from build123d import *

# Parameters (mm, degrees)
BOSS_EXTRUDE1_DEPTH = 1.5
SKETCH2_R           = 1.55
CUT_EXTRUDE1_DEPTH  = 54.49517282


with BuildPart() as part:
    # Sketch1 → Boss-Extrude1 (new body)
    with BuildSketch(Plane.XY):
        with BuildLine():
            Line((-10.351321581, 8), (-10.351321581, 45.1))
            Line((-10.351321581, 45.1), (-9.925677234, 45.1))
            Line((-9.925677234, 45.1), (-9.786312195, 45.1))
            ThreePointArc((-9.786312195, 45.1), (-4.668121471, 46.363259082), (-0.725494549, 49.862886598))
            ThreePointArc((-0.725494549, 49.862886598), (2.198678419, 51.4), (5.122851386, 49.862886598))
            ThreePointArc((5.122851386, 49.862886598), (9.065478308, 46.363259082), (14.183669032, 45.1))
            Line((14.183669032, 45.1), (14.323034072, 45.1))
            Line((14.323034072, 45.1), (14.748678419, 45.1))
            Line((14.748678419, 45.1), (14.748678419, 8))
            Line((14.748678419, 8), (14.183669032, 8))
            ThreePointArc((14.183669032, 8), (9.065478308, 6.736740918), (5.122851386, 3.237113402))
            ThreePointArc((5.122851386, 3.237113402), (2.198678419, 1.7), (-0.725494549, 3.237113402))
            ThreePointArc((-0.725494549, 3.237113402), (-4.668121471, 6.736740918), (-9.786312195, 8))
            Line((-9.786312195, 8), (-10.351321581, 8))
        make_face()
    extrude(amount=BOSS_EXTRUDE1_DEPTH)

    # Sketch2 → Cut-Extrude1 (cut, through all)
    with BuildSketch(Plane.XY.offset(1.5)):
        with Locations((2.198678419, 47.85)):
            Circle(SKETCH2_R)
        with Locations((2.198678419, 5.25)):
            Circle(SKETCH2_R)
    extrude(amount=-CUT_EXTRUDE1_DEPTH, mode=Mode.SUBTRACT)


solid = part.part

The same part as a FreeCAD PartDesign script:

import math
import FreeCAD as App
import Part
import Sketcher

V = App.Vector

doc = App.newDocument("Part")
body = doc.addObject("PartDesign::Body", "Body")

sketch1 = body.newObject("Sketcher::SketchObject", "Sketch")
sketch1.AttachmentSupport = (doc.getObject("XY_Plane"), [""])
sketch1.MapMode = "FlatFace"
sketch1.addGeometry([
    Part.LineSegment(V(-10.351322, 45.1, 0), V(-10.351322, 8, 0)),
    Part.LineSegment(V(-10.351322, 8, 0), V(-9.786312, 8, 0)),
    Part.ArcOfCircle(Part.Circle(V(-9.786312, -3, 0), V(0, 0, 1), 11), math.radians(34.542008), math.radians(90)),
    Part.ArcOfCircle(Part.Circle(V(2.198678, 5.25, 0), V(0, 0, 1), 3.55), math.radians(-145.457992), math.radians(-34.542008)),
    Part.ArcOfCircle(Part.Circle(V(14.183669, -3, 0), V(0, 0, 1), 11), math.radians(90), math.radians(145.457992)),
    Part.LineSegment(V(14.183669, 8, 0), V(14.748678, 8, 0)),
    Part.LineSegment(V(14.748678, 8, 0), V(14.748678, 45.1, 0)),
    Part.LineSegment(V(14.748678, 45.1, 0), V(14.183669, 45.1, 0)),
    Part.ArcOfCircle(Part.Circle(V(14.183669, 56.1, 0), V(0, 0, 1), 11), math.radians(-145.457992), math.radians(-90)),
    Part.ArcOfCircle(Part.Circle(V(2.198678, 47.85, 0), V(0, 0, 1), 3.55), math.radians(34.542008), math.radians(145.457992)),
    Part.ArcOfCircle(Part.Circle(V(-9.786312, 56.1, 0), V(0, 0, 1), 11), math.radians(-90), math.radians(-34.542008)),
    Part.LineSegment(V(-9.786312, 45.1, 0), V(-10.351322, 45.1, 0)),
], False)
sketch1.addConstraint([
    Sketcher.Constraint("Coincident", 0, 2, 1, 1),
    Sketcher.Constraint("Tangent", 1, 2, 2, 2),
    Sketcher.Constraint("Tangent", 2, 1, 3, 1),
    Sketcher.Constraint("Tangent", 3, 2, 4, 2),
    Sketcher.Constraint("Tangent", 4, 1, 5, 1),
    Sketcher.Constraint("Coincident", 5, 2, 6, 1),
    Sketcher.Constraint("Coincident", 6, 2, 7, 1),
    Sketcher.Constraint("Tangent", 7, 2, 8, 2),
    Sketcher.Constraint("Tangent", 8, 1, 9, 1),
    Sketcher.Constraint("Tangent", 9, 2, 10, 2),
    Sketcher.Constraint("Tangent", 10, 1, 11, 1),
    Sketcher.Constraint("Coincident", 11, 2, 0, 1),
    Sketcher.Constraint("Vertical", 0),
    Sketcher.Constraint("Horizontal", 1),
    Sketcher.Constraint("Horizontal", 5),
    Sketcher.Constraint("Vertical", 6),
    Sketcher.Constraint("Horizontal", 7),
    Sketcher.Constraint("Horizontal", 11),
    Sketcher.Constraint("Equal", 2, 4),
    Sketcher.Constraint("Equal", 4, 8),
    Sketcher.Constraint("Equal", 3, 9),
    Sketcher.Constraint("Equal", 8, 10),
    Sketcher.Constraint("Horizontal", 2, 3, 4, 3),
    Sketcher.Constraint("Horizontal", 8, 3, 10, 3),
    Sketcher.Constraint("Vertical", 4, 3, 8, 3),
    Sketcher.Constraint("Vertical", 3, 3, 9, 3),
    Sketcher.Constraint("Equal", 1, 5),
    Sketcher.Constraint("Radius", 2, 11.0),
    Sketcher.Constraint("Radius", 3, 3.55),
    Sketcher.Constraint("DistanceY", 0, 2, 0, 1, 37.1),
    Sketcher.Constraint("DistanceY", 2, 3, -1, 1, 3.0),
    Sketcher.Constraint("DistanceY", 3, 3, 9, 3, 42.6),
    Sketcher.Constraint("DistanceX", 0, 2, 3, 3, 12.55),
    Sketcher.Constraint("DistanceX", -1, 1, 3, 3, 2.198678),
])
pad1 = body.newObject("PartDesign::Pad", "Pad")
pad1.Profile = sketch1
pad1.Length = 1.5

sketch2 = body.newObject("Sketcher::SketchObject", "Sketch001")
sketch2.AttachmentSupport = (doc.getObject("XY_Plane"), [""])
sketch2.MapMode = "FlatFace"
sketch2.AttachmentOffset = App.Placement(V(0, 0, 1.5), App.Rotation())
sketch2.addGeometry([
    Part.Circle(V(2.198678, 47.85, 0), V(0, 0, 1), 1.55),
    Part.Circle(V(2.198678, 5.25, 0), V(0, 0, 1), 1.55),
], False)
sketch2.addConstraint([
    Sketcher.Constraint("Equal", 0, 1),
    Sketcher.Constraint("Vertical", 0, 3, 1, 3),
    Sketcher.Constraint("Diameter", 0, 3.1),
    Sketcher.Constraint("DistanceY", 1, 3, 0, 3, 42.6),
    Sketcher.Constraint("DistanceY", -1, 1, 0, 3, 47.85),
    Sketcher.Constraint("DistanceX", -1, 1, 0, 3, 2.198678),
])
pocket1 = body.newObject("PartDesign::Pocket", "Pocket")
pocket1.Profile = sketch2
pocket1.Type = "ThroughAll"

doc.recompute()
